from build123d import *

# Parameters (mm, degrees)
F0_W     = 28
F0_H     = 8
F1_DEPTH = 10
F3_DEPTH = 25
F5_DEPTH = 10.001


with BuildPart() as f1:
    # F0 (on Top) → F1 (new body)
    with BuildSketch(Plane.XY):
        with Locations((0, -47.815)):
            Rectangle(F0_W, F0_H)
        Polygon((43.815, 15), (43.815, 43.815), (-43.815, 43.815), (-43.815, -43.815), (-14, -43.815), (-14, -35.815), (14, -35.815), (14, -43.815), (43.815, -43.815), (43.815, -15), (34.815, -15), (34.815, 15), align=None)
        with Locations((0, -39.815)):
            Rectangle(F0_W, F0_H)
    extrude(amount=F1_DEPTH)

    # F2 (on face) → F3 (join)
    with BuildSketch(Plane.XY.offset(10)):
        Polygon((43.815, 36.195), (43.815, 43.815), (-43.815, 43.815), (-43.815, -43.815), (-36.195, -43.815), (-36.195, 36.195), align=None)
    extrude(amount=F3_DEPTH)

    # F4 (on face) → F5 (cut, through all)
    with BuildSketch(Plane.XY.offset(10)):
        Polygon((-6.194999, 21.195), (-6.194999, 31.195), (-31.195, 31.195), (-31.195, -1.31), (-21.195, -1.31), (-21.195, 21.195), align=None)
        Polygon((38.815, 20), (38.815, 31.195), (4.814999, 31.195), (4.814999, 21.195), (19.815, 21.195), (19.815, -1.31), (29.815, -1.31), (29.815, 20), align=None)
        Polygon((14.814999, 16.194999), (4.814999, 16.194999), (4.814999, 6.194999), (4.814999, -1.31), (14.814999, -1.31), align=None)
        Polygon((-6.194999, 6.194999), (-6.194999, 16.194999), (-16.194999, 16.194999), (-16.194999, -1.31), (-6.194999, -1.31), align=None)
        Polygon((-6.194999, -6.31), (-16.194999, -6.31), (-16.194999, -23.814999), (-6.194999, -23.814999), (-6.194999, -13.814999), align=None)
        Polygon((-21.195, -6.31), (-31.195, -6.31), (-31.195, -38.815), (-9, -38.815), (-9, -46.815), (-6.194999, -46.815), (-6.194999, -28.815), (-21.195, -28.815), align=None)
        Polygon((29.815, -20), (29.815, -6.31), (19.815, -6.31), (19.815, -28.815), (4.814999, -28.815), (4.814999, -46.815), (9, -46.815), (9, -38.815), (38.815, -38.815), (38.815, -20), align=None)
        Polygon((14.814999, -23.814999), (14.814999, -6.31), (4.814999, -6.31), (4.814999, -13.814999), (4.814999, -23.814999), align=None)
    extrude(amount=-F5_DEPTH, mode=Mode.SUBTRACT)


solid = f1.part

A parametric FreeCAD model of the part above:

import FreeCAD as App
import Part
import Sketcher
from FreeCAD import Vector
Q = App.Units.Quantity

doc = App.newDocument("Part")
body = doc.addObject("PartDesign::Body", "Body")

# Sketch on XY plane
sketch1 = body.newObject("Sketcher::SketchObject", "Sketch")
sketch1.AttachmentSupport = (doc.getObject("XY_Plane"), [""])
sketch1.MapMode = "FlatFace"
sketch1.addGeometry([
    Part.LineSegment(Vector(-14, -44, 0), Vector(-14, -52, 0)),  # 0
    Part.LineSegment(Vector(-14, -52, 0), Vector(14, -52, 0)),  # 1
    Part.LineSegment(Vector(14, -52, 0), Vector(14, -44, 0)),  # 2
    Part.LineSegment(Vector(14, -44, 0), Vector(44, -44, 0)),  # 3
    Part.LineSegment(Vector(44, -44, 0), Vector(44, -15, 0)),  # 4
    Part.LineSegment(Vector(44, -15, 0), Vector(35, -15, 0)),  # 5
    Part.LineSegment(Vector(35, -15, 0), Vector(35, 15, 0)),  # 6
    Part.LineSegment(Vector(35, 15, 0), Vector(44, 15, 0)),  # 7
    Part.LineSegment(Vector(44, 15, 0), Vector(44, 44, 0)),  # 8
    Part.LineSegment(Vector(44, 44, 0), Vector(-44, 44, 0)),  # 9
    Part.LineSegment(Vector(-44, 44, 0), Vector(-44, -44, 0)),  # 10
    Part.LineSegment(Vector(-44, -44, 0), Vector(-14, -44, 0)),  # 11
], False)
sketch1.addConstraint([
    Sketcher.Constraint("Coincident", 0, 2, 1, 1),
    Sketcher.Constraint("Coincident", 1, 2, 2, 1),
    Sketcher.Constraint("Coincident", 2, 2, 3, 1),
    Sketcher.Constraint("Coincident", 3, 2, 4, 1),
    Sketcher.Constraint("Coincident", 4, 2, 5, 1),
    Sketcher.Constraint("Coincident", 5, 2, 6, 1),
    Sketcher.Constraint("Coincident", 6, 2, 7, 1),
    Sketcher.Constraint("Coincident", 7, 2, 8, 1),
    Sketcher.Constraint("Coincident", 8, 2, 9, 1),
    Sketcher.Constraint("Coincident", 9, 2, 10, 1),
    Sketcher.Constraint("Coincident", 10, 2, 11, 1),
    Sketcher.Constraint("Coincident", 11, 2, 0, 1),
    Sketcher.Constraint("Vertical", 0),
    Sketcher.Constraint("Horizontal", 1),
    Sketcher.Constraint("Vertical", 2),
    Sketcher.Constraint("Horizontal", 3),
    Sketcher.Constraint("Vertical", 4),
    Sketcher.Constraint("Horizontal", 5),
    Sketcher.Constraint("Vertical", 6),
    Sketcher.Constraint("Horizontal", 7),
    Sketcher.Constraint("Vertical", 8),
    Sketcher.Constraint("Horizontal", 9),
    Sketcher.Constraint("Vertical", 10),
    Sketcher.Constraint("Horizontal", 11),
    Sketcher.Constraint("Symmetric", 3, 2, 9, 2, -1, 1),
    Sketcher.Constraint("Symmetric", 8, 2, 10, 2, -1, 1),
    Sketcher.Constraint("Equal", 3, 11),
    Sketcher.Constraint("Equal", 4, 8),
    Sketcher.Constraint("Equal", 9, 10),
    Sketcher.Constraint("DistanceX", 1, 1, 1, 2, Q("28 mm")),
    Sketcher.Constraint("DistanceX", 5, 2, 5, 1, Q("9 mm")),
    Sketcher.Constraint("DistanceY", 0, 2, 0, 1, Q("8 mm")),
    Sketcher.Constraint("DistanceY", 6, 1, 6, 2, Q("30 mm")),
    Sketcher.Constraint("DistanceX", 9, 2, 9, 1, Q("87.63 mm")),
])
pad1 = body.newObject("PartDesign::Pad", "Pad")
pad1.Profile = sketch1
pad1.Length = 10

# Sketch on XY plane
sketch2 = body.newObject("Sketcher::SketchObject", "Sketch001")
sketch2.AttachmentSupport = (doc.getObject("XY_Plane"), [""])
sketch2.MapMode = "FlatFace"
sketch2.AttachmentOffset = App.Placement(Vector(0, 0, 10), App.Rotation())
sketch2.addGeometry([
    Part.LineSegment(Vector(44, 36, 0), Vector(44, 44, 0)),  # 0
    Part.LineSegment(Vector(44, 44, 0), Vector(-44, 44, 0)),  # 1
    Part.LineSegment(Vector(-44, 44, 0), Vector(-44, -44, 0)),  # 2
    Part.LineSegment(Vector(-44, -44, 0), Vector(-36, -44, 0)),  # 3
    Part.LineSegment(Vector(-36, -44, 0), Vector(-36, 36, 0)),  # 4
    Part.LineSegment(Vector(-36, 36, 0), Vector(44, 36, 0)),  # 5
], False)
sketch2.addConstraint([
    Sketcher.Constraint("Coincident", 0, 2, 1, 1),
    Sketcher.Constraint("Coincident", 1, 2, 2, 1),
    Sketcher.Constraint("Coincident", 2, 2, 3, 1),
    Sketcher.Constraint("Coincident", 3, 2, 4, 1),
    Sketcher.Constraint("Coincident", 4, 2, 5, 1),
    Sketcher.Constraint("Coincident", 5, 2, 0, 1),
    Sketcher.Constraint("Vertical", 0),
    Sketcher.Constraint("Horizontal", 1),
    Sketcher.Constraint("Vertical", 2),
    Sketcher.Constraint("Horizontal", 3),
    Sketcher.Constraint("Vertical", 4),
    Sketcher.Constraint("Horizontal", 5),
    Sketcher.Constraint("Symmetric", 0, 2, 2, 2, -1, 1),
    Sketcher.Constraint("Equal", 3, 0),
    Sketcher.Constraint("Equal", 1, 2),
    Sketcher.Constraint("DistanceX", 1, 2, 1, 1, Q("87.63 mm")),
    Sketcher.Constraint("DistanceX", 3, 1, 3, 2, Q("7.62 mm")),
])
pad2 = body.newObject("PartDesign::Pad", "Pad001")
pad2.Profile = sketch2
pad2.Length = 25

# Sketch on XY plane
sketch3 = body.newObject("Sketcher::SketchObject", "Sketch002")
sketch3.AttachmentSupport = (doc.getObject("XY_Plane"), [""])
sketch3.MapMode = "FlatFace"
sketch3.AttachmentOffset = App.Placement(Vector(0, 0, 10), App.Rotation())
sketch3.addGeometry([
    Part.LineSegment(Vector(-6.2, 21.2, 0), Vector(-6.2, 31.2, 0)),  # 0
    Part.LineSegment(Vector(-6.2, 31.2, 0), Vector(-31.2, 31.2, 0)),  # 1
    Part.LineSegment(Vector(-31.2, 31.2, 0), Vector(-31.2, -1.3, 0)),  # 2
    Part.LineSegment(Vector(-31.2, -1.3, 0), Vector(-21.2, -1.3, 0)),  # 3
    Part.LineSegment(Vector(-21.2, -1.3, 0), Vector(-21.2, 21.2, 0)),  # 4
    Part.LineSegment(Vector(-21.2, 21.2, 0), Vector(-6.2, 21.2, 0)),  # 5
    Part.LineSegment(Vector(38.8, 20, 0), Vector(38.8, 31.2, 0)),  # 6
    Part.LineSegment(Vector(38.8, 31.2, 0), Vector(4.8, 31.2, 0)),  # 7
    Part.LineSegment(Vector(4.8, 31.2, 0), Vector(4.8, 21.2, 0)),  # 8
    Part.LineSegment(Vector(4.8, 21.2, 0), Vector(19.8, 21.2, 0)),  # 9
    Part.LineSegment(Vector(19.8, 21.2, 0), Vector(19.8, -1.3, 0)),  # 10
    Part.LineSegment(Vector(19.8, -1.3, 0), Vector(29.8, -1.3, 0)),  # 11
    Part.LineSegment(Vector(29.8, -1.3, 0), Vector(29.8, 20, 0)),  # 12
    Part.LineSegment(Vector(29.8, 20, 0), Vector(38.8, 20, 0)),  # 13
    Part.LineSegment(Vector(14.8, 16.2, 0), Vector(4.8, 16.2, 0)),  # 14
    Part.LineSegment(Vector(4.8, 16.2, 0), Vector(4.8, -1.3, 0)),  # 15
    Part.LineSegment(Vector(4.8, -1.3, 0), Vector(14.8, -1.3, 0)),  # 16
    Part.LineSegment(Vector(14.8, -1.3, 0), Vector(14.8, 16.2, 0)),  # 17
    Part.LineSegment(Vector(-6.2, 16.2, 0), Vector(-16.2, 16.2, 0)),  # 18
    Part.LineSegment(Vector(-16.2, 16.2, 0), Vector(-16.2, -1.3, 0)),  # 19
    Part.LineSegment(Vector(-16.2, -1.3, 0), Vector(-6.2, -1.3, 0)),  # 20
    Part.LineSegment(Vector(-6.2, -1.3, 0), Vector(-6.2, 16.2, 0)),  # 21
    Part.LineSegment(Vector(-6.2, -6.3, 0), Vector(-16.2, -6.3, 0)),  # 22
    Part.LineSegment(Vector(-16.2, -6.3, 0), Vector(-16.2, -23.8, 0)),  # 23
    Part.LineSegment(Vector(-16.2, -23.8, 0), Vector(-6.2, -23.8, 0)),  # 24
    Part.LineSegment(Vector(-6.2, -23.8, 0), Vector(-6.2, -6.3, 0)),  # 25
    Part.LineSegment(Vector(-21.2, -6.3, 0), Vector(-31.2, -6.3, 0)),  # 26
    Part.LineSegment(Vector(-31.2, -6.3, 0), Vector(-31.2, -38.8, 0)),  # 27
    Part.LineSegment(Vector(-31.2, -38.8, 0), Vector(-9, -38.8, 0)),  # 28
    Part.LineSegment(Vector(-9, -38.8, 0), Vector(-9, -46.8, 0)),  # 29
    Part.LineSegment(Vector(-9, -46.8, 0), Vector(-6.2, -46.8, 0)),  # 30
    Part.LineSegment(Vector(-6.2, -46.8, 0), Vector(-6.2, -28.8, 0)),  # 31
    Part.LineSegment(Vector(-6.2, -28.8, 0), Vector(-21.2, -28.8, 0)),  # 32
    Part.LineSegment(Vector(-21.2, -28.8, 0), Vector(-21.2, -6.3, 0)),  # 33
    Part.LineSegment(Vector(29.8, -20, 0), Vector(29.8, -6.3, 0)),  # 34
    Part.LineSegment(Vector(29.8, -6.3, 0), Vector(19.8, -6.3, 0)),  # 35
    Part.LineSegment(Vector(19.8, -6.3, 0), Vector(19.8, -28.8, 0)),  # 36
    Part.LineSegment(Vector(19.8, -28.8, 0), Vector(4.8, -28.8, 0)),  # 37
    Part.LineSegment(Vector(4.8, -28.8, 0), Vector(4.8, -46.8, 0)),  # 38
    Part.LineSegment(Vector(4.8, -46.8, 0), Vector(9, -46.8, 0)),  # 39
    Part.LineSegment(Vector(9, -46.8, 0), Vector(9, -38.8, 0)),  # 40
    Part.LineSegment(Vector(9, -38.8, 0), Vector(38.8, -38.8, 0)),  # 41
    Part.LineSegment(Vector(38.8, -38.8, 0), Vector(38.8, -20, 0)),  # 42
    Part.LineSegment(Vector(38.8, -20, 0), Vector(29.8, -20, 0)),  # 43
    Part.LineSegment(Vector(14.8, -23.8, 0), Vector(14.8, -6.3, 0)),  # 44
    Part.LineSegment(Vector(14.8, -6.3, 0), Vector(4.8, -6.3, 0)),  # 45
    Part.LineSegment(Vector(4.8, -6.3, 0), Vector(4.8, -23.8, 0)),  # 46
    Part.LineSegment(Vector(4.8, -23.8, 0), Vector(14.8, -23.8, 0)),  # 47
], False)
sketch3.addConstraint([
    Sketcher.Constraint("Coincident", 0, 2, 1, 1),
    Sketcher.Constraint("Coincident", 1, 2, 2, 1),
    Sketcher.Constraint("Coincident", 2, 2, 3, 1),
    Sketcher.Constraint("Coincident", 3, 2, 4, 1),
    Sketcher.Constraint("Coincident", 4, 2, 5, 1),
    Sketcher.Constraint("Coincident", 5, 2, 0, 1),
    Sketcher.Constraint("Coincident", 6, 2, 7, 1),
    Sketcher.Constraint("Coincident", 7, 2, 8, 1),
    Sketcher.Constraint("Coincident", 8, 2, 9, 1),
    Sketcher.Constraint("Coincident", 9, 2, 10, 1),
    Sketcher.Constraint("Coincident", 10, 2, 11, 1),
    Sketcher.Constraint("Coincident", 11, 2, 12, 1),
    Sketcher.Constraint("Coincident", 12, 2, 13, 1),
    Sketcher.Constraint("Coincident", 13, 2, 6, 1),
    Sketcher.Constraint("Coincident", 14, 2, 15, 1),
    Sketcher.Constraint("Coincident", 15, 2, 16, 1),
    Sketcher.Constraint("Coincident", 16, 2, 17, 1),
    Sketcher.Constraint("Coincident", 17, 2, 14, 1),
    Sketcher.Constraint("Coincident", 18, 2, 19, 1),
    Sketcher.Constraint("Coincident", 19, 2, 20, 1),
    Sketcher.Constraint("Coincident", 20, 2, 21, 1),
    Sketcher.Constraint("Coincident", 21, 2, 18, 1),
    Sketcher.Constraint("Coincident", 22, 2, 23, 1),
    Sketcher.Constraint("Coincident", 23, 2, 24, 1),
    Sketcher.Constraint("Coincident", 24, 2, 25, 1),
    Sketcher.Constraint("Coincident", 25, 2, 22, 1),
    Sketcher.Constraint("Coincident", 26, 2, 27, 1),
    Sketcher.Constraint("Coincident", 27, 2, 28, 1),
    Sketcher.Constraint("Coincident", 28, 2, 29, 1),
    Sketcher.Constraint("Coincident", 29, 2, 30, 1),
    Sketcher.Constraint("Coincident", 30, 2, 31, 1),
    Sketcher.Constraint("Coincident", 31, 2, 32, 1),
    Sketcher.Constraint("Coincident", 32, 2, 33, 1),
    Sketcher.Constraint("Coincident", 33, 2, 26, 1),
    Sketcher.Constraint("Coincident", 34, 2, 35, 1),
    Sketcher.Constraint("Coincident", 35, 2, 36, 1),
    Sketcher.Constraint("Coincident", 36, 2, 37, 1),
    Sketcher.Constraint("Coincident", 37, 2, 38, 1),
    Sketcher.Constraint("Coincident", 38, 2, 39, 1),
    Sketcher.Constraint("Coincident", 39, 2, 40, 1),
    Sketcher.Constraint("Coincident", 40, 2, 41, 1),
    Sketcher.Constraint("Coincident", 41, 2, 42, 1),
    Sketcher.Constraint("Coincident", 42, 2, 43, 1),
    Sketcher.Constraint("Coincident", 43, 2, 34, 1),
    Sketcher.Constraint("Coincident", 44, 2, 45, 1),
    Sketcher.Constraint("Coincident", 45, 2, 46, 1),
    Sketcher.Constraint("Coincident", 46, 2, 47, 1),
    Sketcher.Constraint("Coincident", 47, 2, 44, 1),
    Sketcher.Constraint("Vertical", 0),
    Sketcher.Constraint("Horizontal", 1),
    Sketcher.Constraint("Vertical", 2),
    Sketcher.Constraint("Horizontal", 3),
    Sketcher.Constraint("Vertical", 4),
    Sketcher.Constraint("Horizontal", 5),
    Sketcher.Constraint("Vertical", 6),
    Sketcher.Constraint("Horizontal", 7),
    Sketcher.Constraint("Vertical", 8),
    Sketcher.Constraint("Horizontal", 9),
    Sketcher.Constraint("Vertical", 10),
    Sketcher.Constraint("Horizontal", 11),
    Sketcher.Constraint("Vertical", 12),
    Sketcher.Constraint("Horizontal", 13),
    Sketcher.Constraint("Horizontal", 14),
    Sketcher.Constraint("Vertical", 15),
    Sketcher.Constraint("Horizontal", 16),
    Sketcher.Constraint("Vertical", 17),
    Sketcher.Constraint("Horizontal", 18),
    Sketcher.Constraint("Vertical", 19),
    Sketcher.Constraint("Horizontal", 20),
    Sketcher.Constraint("Vertical", 21),
    Sketcher.Constraint("Horizontal", 22),
    Sketcher.Constraint("Vertical", 23),
    Sketcher.Constraint("Horizontal", 24),
    Sketcher.Constraint("Vertical", 25),
    Sketcher.Constraint("Horizontal", 26),
    Sketcher.Constraint("Vertical", 27),
    Sketcher.Constraint("Horizontal", 28),
    Sketcher.Constraint("Vertical", 29),
    Sketcher.Constraint("Horizontal", 30),
    Sketcher.Constraint("Vertical", 31),
    Sketcher.Constraint("Horizontal", 32),
    Sketcher.Constraint("Vertical", 33),
    Sketcher.Constraint("Vertical", 34),
    Sketcher.Constraint("Horizontal", 35),
    Sketcher.Constraint("Vertical", 36),
    Sketcher.Constraint("Horizontal", 37),
    Sketcher.Constraint("Vertical", 38),
    Sketcher.Constraint("Horizontal", 39),
    Sketcher.Constraint("Vertical", 40),
    Sketcher.Constraint("Horizontal", 41),
    Sketcher.Constraint("Vertical", 42),
    Sketcher.Constraint("Horizontal", 43),
    Sketcher.Constraint("Vertical", 44),
    Sketcher.Constraint("Horizontal", 45),
    Sketcher.Constraint("Vertical", 46),
    Sketcher.Constraint("Horizontal", 47),
    Sketcher.Constraint("Symmetric", 29, 2, 39, 2, -2),
    Sketcher.Constraint("Symmetric", 13, 2, 42, 2, -1),
    Sketcher.Constraint("Horizontal", 1, 2, 6, 2),
    Sketcher.Constraint("Horizontal", 5, 2, 8, 2),
    Sketcher.Constraint("Horizontal", 3, 2, 10, 2),
    Sketcher.Constraint("Horizontal", 11, 2, 15, 2),
    Sketcher.Constraint("Horizontal", 17, 2, 18, 2),
    Sketcher.Constraint("Horizontal", 16, 2, 19, 2),
    Sketcher.Constraint("Horizontal", 25, 2, 26, 2),
    Sketcher.Constraint("Horizontal", 33, 2, 34, 2),
    Sketcher.Constraint("Horizontal", 32, 2, 36, 2),
    Sketcher.Constraint("Horizontal", 28, 2, 40, 2),
    Sketcher.Constraint("Horizontal", 35, 2, 44, 2),
    Sketcher.Constraint("Horizontal", 24, 2, 46, 2),
    Sketcher.Constraint("Vertical", 8, 2, 14, 2),
    Sketcher.Constraint("Vertical", 5, 2, 20, 2),
    Sketcher.Constraint("Vertical", 19, 2, 22, 2),
    Sketcher.Constraint("Vertical", 21, 2, 24, 2),
    Sketcher.Constraint("Vertical", 2, 2, 26, 2),
    Sketcher.Constraint("Vertical", 25, 2, 30, 2),
    Sketcher.Constraint("Vertical", 4, 2, 32, 2),
    Sketcher.Constraint("Vertical", 12, 2, 34, 2),
    Sketcher.Constraint("Vertical", 10, 2, 35, 2),
    Sketcher.Constraint("Vertical", 15, 2, 37, 2),
    Sketcher.Constraint("Vertical", 17, 2, 44, 2),
    Sketcher.Constraint("Vertical", 38, 2, 45, 2),
    Sketcher.Constraint("Equal", 5, 9),
    Sketcher.Constraint("Equal", 3, 11),
    Sketcher.Constraint("Equal", 11, 14),
    Sketcher.Constraint("Equal", 16, 18),
    Sketcher.Constraint("Equal", 47, 0),
    Sketcher.Constraint("Equal", 21, 23),
    Sketcher.Constraint("Equal", 2, 27),
    Sketcher.Constraint("Equal", 10, 33),
    Sketcher.Constraint("DistanceX", 1, 2, 1, 1, Q("25.000001 mm")),
    Sketcher.Constraint("DistanceX", 3, 1, 3, 2, Q("10 mm")),
    Sketcher.Constraint("DistanceX", 7, 2, 7, 1, Q("34.000001 mm")),
    Sketcher.Constraint("DistanceY", 29, 2, 29, 1, Q("8 mm")),
    Sketcher.Constraint("DistanceY", -1, 1, 12, 2, Q("20 mm")),
    Sketcher.Constraint("DistanceX", 28, 2, -1, 1, Q("9 mm")),
    Sketcher.Constraint("DistanceY", 14, 2, 8, 2, Q("5.000001 mm")),
    Sketcher.Constraint("DistanceY", 22, 2, 19, 2, Q("5 mm")),
    Sketcher.Constraint("DistanceY", 12, 1, 12, 2, Q("21.31 mm")),
    Sketcher.Constraint("DistanceX", 28, 1, 28, 2, Q("22.195 mm")),
    Sketcher.Constraint("DistanceX", 39, 1, 39, 2, Q("4.185001 mm")),
    Sketcher.Constraint("DistanceY", 2, 2, 2, 1, Q("32.505 mm")),
])
pocket1 = body.newObject("PartDesign::Pocket", "Pocket")
pocket1.Profile = sketch3
pocket1.Type = "ThroughAll"

doc.recompute()
